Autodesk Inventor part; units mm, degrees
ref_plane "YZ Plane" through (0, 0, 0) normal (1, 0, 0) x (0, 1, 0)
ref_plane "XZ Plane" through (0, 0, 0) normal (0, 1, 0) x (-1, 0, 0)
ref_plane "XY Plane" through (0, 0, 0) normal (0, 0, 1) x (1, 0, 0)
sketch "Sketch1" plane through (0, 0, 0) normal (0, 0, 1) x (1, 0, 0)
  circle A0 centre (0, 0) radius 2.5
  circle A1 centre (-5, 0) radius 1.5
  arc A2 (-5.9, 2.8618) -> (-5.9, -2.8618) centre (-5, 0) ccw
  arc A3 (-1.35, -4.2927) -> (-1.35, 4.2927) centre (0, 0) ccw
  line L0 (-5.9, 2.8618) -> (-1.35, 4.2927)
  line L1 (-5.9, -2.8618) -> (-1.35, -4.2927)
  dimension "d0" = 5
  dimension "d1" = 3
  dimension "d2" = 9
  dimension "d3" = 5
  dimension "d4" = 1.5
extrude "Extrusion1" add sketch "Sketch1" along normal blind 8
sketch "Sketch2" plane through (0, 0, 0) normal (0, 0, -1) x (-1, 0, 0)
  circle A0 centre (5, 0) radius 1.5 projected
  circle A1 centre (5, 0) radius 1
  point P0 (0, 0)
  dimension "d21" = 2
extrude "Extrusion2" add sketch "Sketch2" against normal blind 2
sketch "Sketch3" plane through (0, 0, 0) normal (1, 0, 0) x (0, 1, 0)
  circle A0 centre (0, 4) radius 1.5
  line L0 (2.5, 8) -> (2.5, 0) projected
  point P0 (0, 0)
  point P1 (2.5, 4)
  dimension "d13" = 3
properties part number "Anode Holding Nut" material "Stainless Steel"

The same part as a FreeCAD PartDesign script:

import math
import FreeCAD as App
import Part
import Sketcher

V = App.Vector

doc = App.newDocument("Part")
body = doc.addObject("PartDesign::Body", "Body")

# Sketch on XY plane
sketch1 = body.newObject("Sketcher::SketchObject", "Sketch")
sketch1.AttachmentSupport = (doc.getObject("XY_Plane"), [""])
sketch1.MapMode = "FlatFace"
sketch1.addGeometry([
    Part.LineSegment(V(-1.4, 4.3, 0), V(-5.9, 2.9, 0)),  # 0
    Part.ArcOfCircle(Part.Circle(V(-5, 0, 0), V(0, 0, 1), 3), math.radians(107), math.radians(253)),  # 1
    Part.LineSegment(V(-5.9, -2.9, 0), V(-1.4, -4.3, 0)),  # 2
    Part.ArcOfCircle(Part.Circle(V(0, 0, 0), V(0, 0, 1), 4.5), math.radians(-107), math.radians(107)),  # 3
    Part.Circle(V(-5, 0, 0), V(0, 0, 1), 1.5),  # 4
    Part.Circle(V(0, 0, 0), V(0, 0, 1), 2.5),  # 5
], False)
sketch1.addConstraint([
    Sketcher.Constraint("Tangent", 0, 2, 1, 1),
    Sketcher.Constraint("Tangent", 1, 2, 2, 1),
    Sketcher.Constraint("Tangent", 2, 2, 3, 1),
    Sketcher.Constraint("Tangent", 3, 2, 0, 1),
    Sketcher.Constraint("Coincident", 3, 3, -1, 1),
    Sketcher.Constraint("Coincident", 5, 3, -1, 1),
    Sketcher.Constraint("Coincident", 4, 3, 1, 3),
    Sketcher.Constraint("PointOnObject", 1, 3, -1),
    Sketcher.Constraint("Diameter", 4, 3.0),
    Sketcher.Constraint("Diameter", 5, 5.0),
    Sketcher.Constraint("Radius", 1, 3.0),
    Sketcher.Constraint("Radius", 3, 4.5),
    Sketcher.Constraint("DistanceX", 1, 3, -1, 1, 5.0),
])
pad1 = body.newObject("PartDesign::Pad", "Pad")
pad1.Profile = sketch1
pad1.Length = 8

# Sketch on XY plane
sketch2 = body.newObject("Sketcher::SketchObject", "Sketch001")
sketch2.AttachmentSupport = (doc.getObject("XY_Plane"), [""])
sketch2.MapMode = "FlatFace"
sketch2.addGeometry([
    Part.Circle(V(-5, 0, 0), V(0, 0, 1), 1.5),
    Part.Circle(V(-5, 0, 0), V(0, 0, 1), 1),
], False)
sketch2.addConstraint([
    Sketcher.Constraint("Coincident", 1, 3, 0, 3),
    Sketcher.Constraint("PointOnObject", 0, 3, -1),
    Sketcher.Constraint("Diameter", 1, 2.0),
    Sketcher.Constraint("Diameter", 0, 3.0),
    Sketcher.Constraint("DistanceX", 0, 3, -1, 1, 5.0),
])
pad2 = body.newObject("PartDesign::Pad", "Pad001")
pad2.Profile = sketch2
pad2.Length = 2

doc.recompute()
